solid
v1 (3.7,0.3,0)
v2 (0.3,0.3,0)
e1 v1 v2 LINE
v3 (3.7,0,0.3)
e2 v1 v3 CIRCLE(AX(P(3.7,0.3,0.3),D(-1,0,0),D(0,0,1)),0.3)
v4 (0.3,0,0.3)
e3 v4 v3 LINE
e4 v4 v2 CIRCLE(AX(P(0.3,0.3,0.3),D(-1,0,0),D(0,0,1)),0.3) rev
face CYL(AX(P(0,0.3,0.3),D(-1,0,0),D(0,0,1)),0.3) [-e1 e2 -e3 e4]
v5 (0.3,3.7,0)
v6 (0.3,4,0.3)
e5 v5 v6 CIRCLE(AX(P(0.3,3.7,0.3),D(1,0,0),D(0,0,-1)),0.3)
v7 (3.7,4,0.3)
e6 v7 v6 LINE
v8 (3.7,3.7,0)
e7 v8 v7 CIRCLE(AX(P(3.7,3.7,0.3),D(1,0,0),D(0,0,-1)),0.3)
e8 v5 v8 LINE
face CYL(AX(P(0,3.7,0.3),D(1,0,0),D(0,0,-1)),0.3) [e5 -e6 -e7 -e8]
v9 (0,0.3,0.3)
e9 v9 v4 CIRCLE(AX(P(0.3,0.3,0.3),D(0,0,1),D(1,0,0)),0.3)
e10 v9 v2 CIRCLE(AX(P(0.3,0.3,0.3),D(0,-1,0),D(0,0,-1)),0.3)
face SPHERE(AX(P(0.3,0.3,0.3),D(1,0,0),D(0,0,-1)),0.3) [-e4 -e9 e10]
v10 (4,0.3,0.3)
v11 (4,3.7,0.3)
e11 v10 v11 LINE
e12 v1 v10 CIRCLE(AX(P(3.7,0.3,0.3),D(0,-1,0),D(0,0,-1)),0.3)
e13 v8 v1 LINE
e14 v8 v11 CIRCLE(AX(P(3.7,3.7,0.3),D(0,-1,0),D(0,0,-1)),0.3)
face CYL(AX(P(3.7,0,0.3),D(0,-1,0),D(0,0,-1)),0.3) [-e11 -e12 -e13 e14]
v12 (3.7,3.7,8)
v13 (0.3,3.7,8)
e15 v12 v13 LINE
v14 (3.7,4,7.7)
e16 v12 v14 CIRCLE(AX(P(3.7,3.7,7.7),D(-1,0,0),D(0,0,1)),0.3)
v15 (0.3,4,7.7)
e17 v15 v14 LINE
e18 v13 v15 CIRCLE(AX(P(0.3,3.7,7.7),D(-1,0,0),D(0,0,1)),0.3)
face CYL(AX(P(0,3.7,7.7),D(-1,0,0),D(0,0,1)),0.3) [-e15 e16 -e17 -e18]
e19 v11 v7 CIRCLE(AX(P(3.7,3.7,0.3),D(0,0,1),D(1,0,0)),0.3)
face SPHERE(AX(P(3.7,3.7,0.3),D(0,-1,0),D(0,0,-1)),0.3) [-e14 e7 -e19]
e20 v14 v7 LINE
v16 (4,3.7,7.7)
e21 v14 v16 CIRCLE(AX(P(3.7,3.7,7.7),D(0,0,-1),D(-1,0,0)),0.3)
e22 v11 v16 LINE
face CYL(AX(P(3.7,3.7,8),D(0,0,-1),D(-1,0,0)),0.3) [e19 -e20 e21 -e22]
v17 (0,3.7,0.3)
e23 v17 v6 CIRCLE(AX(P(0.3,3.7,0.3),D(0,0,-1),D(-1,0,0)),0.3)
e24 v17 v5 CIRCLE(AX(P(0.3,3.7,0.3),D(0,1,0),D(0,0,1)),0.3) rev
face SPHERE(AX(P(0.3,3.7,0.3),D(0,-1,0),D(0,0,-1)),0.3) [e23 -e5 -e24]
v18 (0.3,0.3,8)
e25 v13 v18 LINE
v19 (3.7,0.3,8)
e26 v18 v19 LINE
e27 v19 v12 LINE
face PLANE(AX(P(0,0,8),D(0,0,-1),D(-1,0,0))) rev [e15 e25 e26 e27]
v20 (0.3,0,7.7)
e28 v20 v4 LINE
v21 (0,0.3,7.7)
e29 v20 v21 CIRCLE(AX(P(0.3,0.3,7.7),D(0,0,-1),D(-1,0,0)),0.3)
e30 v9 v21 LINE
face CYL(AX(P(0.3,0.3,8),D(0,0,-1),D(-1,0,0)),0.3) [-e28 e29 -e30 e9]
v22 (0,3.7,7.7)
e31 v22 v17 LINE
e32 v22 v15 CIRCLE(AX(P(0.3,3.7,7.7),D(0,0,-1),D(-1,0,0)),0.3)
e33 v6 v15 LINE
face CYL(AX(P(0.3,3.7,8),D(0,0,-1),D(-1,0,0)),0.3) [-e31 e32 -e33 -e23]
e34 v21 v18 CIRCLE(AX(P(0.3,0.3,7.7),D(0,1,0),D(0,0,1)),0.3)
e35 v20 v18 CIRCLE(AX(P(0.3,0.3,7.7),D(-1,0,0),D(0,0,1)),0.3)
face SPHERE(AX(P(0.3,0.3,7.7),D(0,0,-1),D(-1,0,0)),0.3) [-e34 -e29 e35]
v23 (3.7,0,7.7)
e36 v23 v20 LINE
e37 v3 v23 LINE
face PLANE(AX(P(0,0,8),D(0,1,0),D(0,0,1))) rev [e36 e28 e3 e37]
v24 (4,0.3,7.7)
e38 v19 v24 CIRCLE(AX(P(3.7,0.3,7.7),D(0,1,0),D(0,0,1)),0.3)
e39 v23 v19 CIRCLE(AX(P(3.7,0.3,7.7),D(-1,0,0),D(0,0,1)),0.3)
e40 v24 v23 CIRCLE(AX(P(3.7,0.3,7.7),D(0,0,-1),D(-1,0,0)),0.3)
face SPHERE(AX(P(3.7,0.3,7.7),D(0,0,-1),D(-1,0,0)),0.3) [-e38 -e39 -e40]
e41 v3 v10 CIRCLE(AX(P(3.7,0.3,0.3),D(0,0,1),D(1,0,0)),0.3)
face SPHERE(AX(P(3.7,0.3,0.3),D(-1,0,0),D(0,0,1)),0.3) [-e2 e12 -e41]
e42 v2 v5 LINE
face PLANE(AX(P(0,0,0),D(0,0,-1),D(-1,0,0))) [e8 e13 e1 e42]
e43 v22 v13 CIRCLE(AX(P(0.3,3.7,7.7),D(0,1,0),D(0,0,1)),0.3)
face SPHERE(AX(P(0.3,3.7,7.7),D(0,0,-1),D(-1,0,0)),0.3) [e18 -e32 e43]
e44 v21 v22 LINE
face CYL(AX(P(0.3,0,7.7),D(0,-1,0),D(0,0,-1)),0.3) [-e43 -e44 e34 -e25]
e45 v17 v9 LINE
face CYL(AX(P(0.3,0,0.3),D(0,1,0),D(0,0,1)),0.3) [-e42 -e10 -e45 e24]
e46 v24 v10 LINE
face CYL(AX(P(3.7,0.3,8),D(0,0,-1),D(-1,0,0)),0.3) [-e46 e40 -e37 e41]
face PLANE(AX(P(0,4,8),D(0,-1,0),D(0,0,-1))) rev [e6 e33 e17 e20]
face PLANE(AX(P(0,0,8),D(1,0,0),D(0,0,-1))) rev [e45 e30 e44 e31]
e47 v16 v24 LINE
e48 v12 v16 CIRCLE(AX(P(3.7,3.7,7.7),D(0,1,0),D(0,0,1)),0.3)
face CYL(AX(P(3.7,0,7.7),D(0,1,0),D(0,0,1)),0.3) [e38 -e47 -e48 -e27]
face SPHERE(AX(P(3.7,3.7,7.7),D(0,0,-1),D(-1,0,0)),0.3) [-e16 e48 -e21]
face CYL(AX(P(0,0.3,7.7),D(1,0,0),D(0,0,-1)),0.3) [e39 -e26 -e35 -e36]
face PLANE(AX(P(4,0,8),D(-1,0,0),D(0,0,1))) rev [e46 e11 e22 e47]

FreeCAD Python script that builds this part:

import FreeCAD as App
import Part
import Sketcher

V = App.Vector
Q = App.Units.Quantity


def edges_at(feature, points):
    """Names of the edges that pass closest to the given points."""
    edges = feature.Shape.Edges
    near = lambda p: min(range(len(edges)), key=lambda i: edges[i].distToShape(Part.Vertex(*p))[0])
    return sorted({f"Edge{near(p) + 1}" for p in points})

doc = App.newDocument("Part")
params = doc.addObject("Spreadsheet::Sheet", "Params")
for row, (alias, value) in enumerate([
    ("sketch1_width", "4 mm"),
    ("pad1_length", "8 mm"),
    ("fillet_radius", "0.3 mm"),
    ("fillet2_radius", "0.3 mm"),
    ("fillet3_radius", "0.3 mm"),
    ("fillet4_radius", "0.3 mm"),
    ("fillet5_radius", "0.3 mm"),
], start=1):
    params.set(f"A{row}", alias)
    params.set(f"B{row}", "=" + value)
    params.setAlias(f"B{row}", alias)

body = doc.addObject("PartDesign::Body", "Body")

sketch1 = body.newObject("Sketcher::SketchObject", "Sketch")
sketch1.AttachmentSupport = (doc.getObject("XY_Plane"), [""])
sketch1.MapMode = "FlatFace"
sketch1.addGeometry(Part.LineSegment(V(0, 4, 0), V(0, 0, 0)), False)
sketch1.addGeometry(Part.LineSegment(V(0, 0, 0), V(4, 0, 0)), False)
sketch1.addGeometry(Part.LineSegment(V(4, 0, 0), V(4, 4, 0)), False)
sketch1.addGeometry(Part.LineSegment(V(4, 4, 0), V(0, 4, 0)), False)
sketch1.addConstraint(Sketcher.Constraint("Coincident", 0, 2, 1, 1))
sketch1.addConstraint(Sketcher.Constraint("Coincident", 1, 2, 2, 1))
sketch1.addConstraint(Sketcher.Constraint("Coincident", 2, 2, 3, 1))
sketch1.addConstraint(Sketcher.Constraint("Coincident", 3, 2, 0, 1))
sketch1.addConstraint(Sketcher.Constraint("Vertical", 0))
sketch1.addConstraint(Sketcher.Constraint("Horizontal", 1))
sketch1.addConstraint(Sketcher.Constraint("Vertical", 2))
sketch1.addConstraint(Sketcher.Constraint("Horizontal", 3))
sketch1.addConstraint(Sketcher.Constraint("Coincident", 0, 2, -1, 1))
sketch1.addConstraint(Sketcher.Constraint("Equal", 3, 0))
sketch1.addConstraint(Sketcher.Constraint("DistanceX", 1, 1, 1, 2, Q("4 mm")))
sketch1.setExpression("Constraints[10]", "Params.sketch1_width")
pad1 = body.newObject("PartDesign::Pad", "Pad")
pad1.Profile = sketch1
pad1.setExpression("Length", "Params.pad1_length")
doc.recompute()

fillet = body.newObject("PartDesign::Fillet", "Fillet")
fillet.Base = (pad1, edges_at(pad1, [(2, 0, 0)]))
fillet.setExpression("Radius", "Params.fillet_radius")
doc.recompute()

fillet2 = body.newObject("PartDesign::Fillet", "Fillet001")
fillet2.Base = (fillet, edges_at(fillet, [(4, 2.15, 0), (4, 0.088, 0.088), (4, 0, 4.15)]))
fillet2.setExpression("Radius", "Params.fillet2_radius")
doc.recompute()

fillet3 = body.newObject("PartDesign::Fillet", "Fillet002")
fillet3.Base = (fillet2, edges_at(fillet2, [(0, 0.088, 0.088), (0, 2.15, 0), (0, 0, 4.15)]))
fillet3.setExpression("Radius", "Params.fillet3_radius")
doc.recompute()

fillet4 = body.newObject("PartDesign::Fillet", "Fillet003")
fillet4.Base = (fillet3, edges_at(fillet3, [
    (2, 4, 0),
    (3.912, 4, 0.088),
    (0.088, 4, 0.088),
    (0, 4, 4.15),
    (4, 4, 4.15),
]))
fillet4.setExpression("Radius", "Params.fillet4_radius")
doc.recompute()

fillet5 = body.newObject("PartDesign::Fillet", "Fillet004")
fillet5.Base = (fillet4, edges_at(fillet4, [
    (4, 2, 8),
    (3.912, 0.088, 8),
    (2, 0, 8),
    (0.088, 0.088, 8),
    (2, 4, 8),
    (0, 2, 8),
    (0.088, 3.912, 8),
    (3.912, 3.912, 8),
]))
fillet5.setExpression("Radius", "Params.fillet5_radius")

doc.recompute()
